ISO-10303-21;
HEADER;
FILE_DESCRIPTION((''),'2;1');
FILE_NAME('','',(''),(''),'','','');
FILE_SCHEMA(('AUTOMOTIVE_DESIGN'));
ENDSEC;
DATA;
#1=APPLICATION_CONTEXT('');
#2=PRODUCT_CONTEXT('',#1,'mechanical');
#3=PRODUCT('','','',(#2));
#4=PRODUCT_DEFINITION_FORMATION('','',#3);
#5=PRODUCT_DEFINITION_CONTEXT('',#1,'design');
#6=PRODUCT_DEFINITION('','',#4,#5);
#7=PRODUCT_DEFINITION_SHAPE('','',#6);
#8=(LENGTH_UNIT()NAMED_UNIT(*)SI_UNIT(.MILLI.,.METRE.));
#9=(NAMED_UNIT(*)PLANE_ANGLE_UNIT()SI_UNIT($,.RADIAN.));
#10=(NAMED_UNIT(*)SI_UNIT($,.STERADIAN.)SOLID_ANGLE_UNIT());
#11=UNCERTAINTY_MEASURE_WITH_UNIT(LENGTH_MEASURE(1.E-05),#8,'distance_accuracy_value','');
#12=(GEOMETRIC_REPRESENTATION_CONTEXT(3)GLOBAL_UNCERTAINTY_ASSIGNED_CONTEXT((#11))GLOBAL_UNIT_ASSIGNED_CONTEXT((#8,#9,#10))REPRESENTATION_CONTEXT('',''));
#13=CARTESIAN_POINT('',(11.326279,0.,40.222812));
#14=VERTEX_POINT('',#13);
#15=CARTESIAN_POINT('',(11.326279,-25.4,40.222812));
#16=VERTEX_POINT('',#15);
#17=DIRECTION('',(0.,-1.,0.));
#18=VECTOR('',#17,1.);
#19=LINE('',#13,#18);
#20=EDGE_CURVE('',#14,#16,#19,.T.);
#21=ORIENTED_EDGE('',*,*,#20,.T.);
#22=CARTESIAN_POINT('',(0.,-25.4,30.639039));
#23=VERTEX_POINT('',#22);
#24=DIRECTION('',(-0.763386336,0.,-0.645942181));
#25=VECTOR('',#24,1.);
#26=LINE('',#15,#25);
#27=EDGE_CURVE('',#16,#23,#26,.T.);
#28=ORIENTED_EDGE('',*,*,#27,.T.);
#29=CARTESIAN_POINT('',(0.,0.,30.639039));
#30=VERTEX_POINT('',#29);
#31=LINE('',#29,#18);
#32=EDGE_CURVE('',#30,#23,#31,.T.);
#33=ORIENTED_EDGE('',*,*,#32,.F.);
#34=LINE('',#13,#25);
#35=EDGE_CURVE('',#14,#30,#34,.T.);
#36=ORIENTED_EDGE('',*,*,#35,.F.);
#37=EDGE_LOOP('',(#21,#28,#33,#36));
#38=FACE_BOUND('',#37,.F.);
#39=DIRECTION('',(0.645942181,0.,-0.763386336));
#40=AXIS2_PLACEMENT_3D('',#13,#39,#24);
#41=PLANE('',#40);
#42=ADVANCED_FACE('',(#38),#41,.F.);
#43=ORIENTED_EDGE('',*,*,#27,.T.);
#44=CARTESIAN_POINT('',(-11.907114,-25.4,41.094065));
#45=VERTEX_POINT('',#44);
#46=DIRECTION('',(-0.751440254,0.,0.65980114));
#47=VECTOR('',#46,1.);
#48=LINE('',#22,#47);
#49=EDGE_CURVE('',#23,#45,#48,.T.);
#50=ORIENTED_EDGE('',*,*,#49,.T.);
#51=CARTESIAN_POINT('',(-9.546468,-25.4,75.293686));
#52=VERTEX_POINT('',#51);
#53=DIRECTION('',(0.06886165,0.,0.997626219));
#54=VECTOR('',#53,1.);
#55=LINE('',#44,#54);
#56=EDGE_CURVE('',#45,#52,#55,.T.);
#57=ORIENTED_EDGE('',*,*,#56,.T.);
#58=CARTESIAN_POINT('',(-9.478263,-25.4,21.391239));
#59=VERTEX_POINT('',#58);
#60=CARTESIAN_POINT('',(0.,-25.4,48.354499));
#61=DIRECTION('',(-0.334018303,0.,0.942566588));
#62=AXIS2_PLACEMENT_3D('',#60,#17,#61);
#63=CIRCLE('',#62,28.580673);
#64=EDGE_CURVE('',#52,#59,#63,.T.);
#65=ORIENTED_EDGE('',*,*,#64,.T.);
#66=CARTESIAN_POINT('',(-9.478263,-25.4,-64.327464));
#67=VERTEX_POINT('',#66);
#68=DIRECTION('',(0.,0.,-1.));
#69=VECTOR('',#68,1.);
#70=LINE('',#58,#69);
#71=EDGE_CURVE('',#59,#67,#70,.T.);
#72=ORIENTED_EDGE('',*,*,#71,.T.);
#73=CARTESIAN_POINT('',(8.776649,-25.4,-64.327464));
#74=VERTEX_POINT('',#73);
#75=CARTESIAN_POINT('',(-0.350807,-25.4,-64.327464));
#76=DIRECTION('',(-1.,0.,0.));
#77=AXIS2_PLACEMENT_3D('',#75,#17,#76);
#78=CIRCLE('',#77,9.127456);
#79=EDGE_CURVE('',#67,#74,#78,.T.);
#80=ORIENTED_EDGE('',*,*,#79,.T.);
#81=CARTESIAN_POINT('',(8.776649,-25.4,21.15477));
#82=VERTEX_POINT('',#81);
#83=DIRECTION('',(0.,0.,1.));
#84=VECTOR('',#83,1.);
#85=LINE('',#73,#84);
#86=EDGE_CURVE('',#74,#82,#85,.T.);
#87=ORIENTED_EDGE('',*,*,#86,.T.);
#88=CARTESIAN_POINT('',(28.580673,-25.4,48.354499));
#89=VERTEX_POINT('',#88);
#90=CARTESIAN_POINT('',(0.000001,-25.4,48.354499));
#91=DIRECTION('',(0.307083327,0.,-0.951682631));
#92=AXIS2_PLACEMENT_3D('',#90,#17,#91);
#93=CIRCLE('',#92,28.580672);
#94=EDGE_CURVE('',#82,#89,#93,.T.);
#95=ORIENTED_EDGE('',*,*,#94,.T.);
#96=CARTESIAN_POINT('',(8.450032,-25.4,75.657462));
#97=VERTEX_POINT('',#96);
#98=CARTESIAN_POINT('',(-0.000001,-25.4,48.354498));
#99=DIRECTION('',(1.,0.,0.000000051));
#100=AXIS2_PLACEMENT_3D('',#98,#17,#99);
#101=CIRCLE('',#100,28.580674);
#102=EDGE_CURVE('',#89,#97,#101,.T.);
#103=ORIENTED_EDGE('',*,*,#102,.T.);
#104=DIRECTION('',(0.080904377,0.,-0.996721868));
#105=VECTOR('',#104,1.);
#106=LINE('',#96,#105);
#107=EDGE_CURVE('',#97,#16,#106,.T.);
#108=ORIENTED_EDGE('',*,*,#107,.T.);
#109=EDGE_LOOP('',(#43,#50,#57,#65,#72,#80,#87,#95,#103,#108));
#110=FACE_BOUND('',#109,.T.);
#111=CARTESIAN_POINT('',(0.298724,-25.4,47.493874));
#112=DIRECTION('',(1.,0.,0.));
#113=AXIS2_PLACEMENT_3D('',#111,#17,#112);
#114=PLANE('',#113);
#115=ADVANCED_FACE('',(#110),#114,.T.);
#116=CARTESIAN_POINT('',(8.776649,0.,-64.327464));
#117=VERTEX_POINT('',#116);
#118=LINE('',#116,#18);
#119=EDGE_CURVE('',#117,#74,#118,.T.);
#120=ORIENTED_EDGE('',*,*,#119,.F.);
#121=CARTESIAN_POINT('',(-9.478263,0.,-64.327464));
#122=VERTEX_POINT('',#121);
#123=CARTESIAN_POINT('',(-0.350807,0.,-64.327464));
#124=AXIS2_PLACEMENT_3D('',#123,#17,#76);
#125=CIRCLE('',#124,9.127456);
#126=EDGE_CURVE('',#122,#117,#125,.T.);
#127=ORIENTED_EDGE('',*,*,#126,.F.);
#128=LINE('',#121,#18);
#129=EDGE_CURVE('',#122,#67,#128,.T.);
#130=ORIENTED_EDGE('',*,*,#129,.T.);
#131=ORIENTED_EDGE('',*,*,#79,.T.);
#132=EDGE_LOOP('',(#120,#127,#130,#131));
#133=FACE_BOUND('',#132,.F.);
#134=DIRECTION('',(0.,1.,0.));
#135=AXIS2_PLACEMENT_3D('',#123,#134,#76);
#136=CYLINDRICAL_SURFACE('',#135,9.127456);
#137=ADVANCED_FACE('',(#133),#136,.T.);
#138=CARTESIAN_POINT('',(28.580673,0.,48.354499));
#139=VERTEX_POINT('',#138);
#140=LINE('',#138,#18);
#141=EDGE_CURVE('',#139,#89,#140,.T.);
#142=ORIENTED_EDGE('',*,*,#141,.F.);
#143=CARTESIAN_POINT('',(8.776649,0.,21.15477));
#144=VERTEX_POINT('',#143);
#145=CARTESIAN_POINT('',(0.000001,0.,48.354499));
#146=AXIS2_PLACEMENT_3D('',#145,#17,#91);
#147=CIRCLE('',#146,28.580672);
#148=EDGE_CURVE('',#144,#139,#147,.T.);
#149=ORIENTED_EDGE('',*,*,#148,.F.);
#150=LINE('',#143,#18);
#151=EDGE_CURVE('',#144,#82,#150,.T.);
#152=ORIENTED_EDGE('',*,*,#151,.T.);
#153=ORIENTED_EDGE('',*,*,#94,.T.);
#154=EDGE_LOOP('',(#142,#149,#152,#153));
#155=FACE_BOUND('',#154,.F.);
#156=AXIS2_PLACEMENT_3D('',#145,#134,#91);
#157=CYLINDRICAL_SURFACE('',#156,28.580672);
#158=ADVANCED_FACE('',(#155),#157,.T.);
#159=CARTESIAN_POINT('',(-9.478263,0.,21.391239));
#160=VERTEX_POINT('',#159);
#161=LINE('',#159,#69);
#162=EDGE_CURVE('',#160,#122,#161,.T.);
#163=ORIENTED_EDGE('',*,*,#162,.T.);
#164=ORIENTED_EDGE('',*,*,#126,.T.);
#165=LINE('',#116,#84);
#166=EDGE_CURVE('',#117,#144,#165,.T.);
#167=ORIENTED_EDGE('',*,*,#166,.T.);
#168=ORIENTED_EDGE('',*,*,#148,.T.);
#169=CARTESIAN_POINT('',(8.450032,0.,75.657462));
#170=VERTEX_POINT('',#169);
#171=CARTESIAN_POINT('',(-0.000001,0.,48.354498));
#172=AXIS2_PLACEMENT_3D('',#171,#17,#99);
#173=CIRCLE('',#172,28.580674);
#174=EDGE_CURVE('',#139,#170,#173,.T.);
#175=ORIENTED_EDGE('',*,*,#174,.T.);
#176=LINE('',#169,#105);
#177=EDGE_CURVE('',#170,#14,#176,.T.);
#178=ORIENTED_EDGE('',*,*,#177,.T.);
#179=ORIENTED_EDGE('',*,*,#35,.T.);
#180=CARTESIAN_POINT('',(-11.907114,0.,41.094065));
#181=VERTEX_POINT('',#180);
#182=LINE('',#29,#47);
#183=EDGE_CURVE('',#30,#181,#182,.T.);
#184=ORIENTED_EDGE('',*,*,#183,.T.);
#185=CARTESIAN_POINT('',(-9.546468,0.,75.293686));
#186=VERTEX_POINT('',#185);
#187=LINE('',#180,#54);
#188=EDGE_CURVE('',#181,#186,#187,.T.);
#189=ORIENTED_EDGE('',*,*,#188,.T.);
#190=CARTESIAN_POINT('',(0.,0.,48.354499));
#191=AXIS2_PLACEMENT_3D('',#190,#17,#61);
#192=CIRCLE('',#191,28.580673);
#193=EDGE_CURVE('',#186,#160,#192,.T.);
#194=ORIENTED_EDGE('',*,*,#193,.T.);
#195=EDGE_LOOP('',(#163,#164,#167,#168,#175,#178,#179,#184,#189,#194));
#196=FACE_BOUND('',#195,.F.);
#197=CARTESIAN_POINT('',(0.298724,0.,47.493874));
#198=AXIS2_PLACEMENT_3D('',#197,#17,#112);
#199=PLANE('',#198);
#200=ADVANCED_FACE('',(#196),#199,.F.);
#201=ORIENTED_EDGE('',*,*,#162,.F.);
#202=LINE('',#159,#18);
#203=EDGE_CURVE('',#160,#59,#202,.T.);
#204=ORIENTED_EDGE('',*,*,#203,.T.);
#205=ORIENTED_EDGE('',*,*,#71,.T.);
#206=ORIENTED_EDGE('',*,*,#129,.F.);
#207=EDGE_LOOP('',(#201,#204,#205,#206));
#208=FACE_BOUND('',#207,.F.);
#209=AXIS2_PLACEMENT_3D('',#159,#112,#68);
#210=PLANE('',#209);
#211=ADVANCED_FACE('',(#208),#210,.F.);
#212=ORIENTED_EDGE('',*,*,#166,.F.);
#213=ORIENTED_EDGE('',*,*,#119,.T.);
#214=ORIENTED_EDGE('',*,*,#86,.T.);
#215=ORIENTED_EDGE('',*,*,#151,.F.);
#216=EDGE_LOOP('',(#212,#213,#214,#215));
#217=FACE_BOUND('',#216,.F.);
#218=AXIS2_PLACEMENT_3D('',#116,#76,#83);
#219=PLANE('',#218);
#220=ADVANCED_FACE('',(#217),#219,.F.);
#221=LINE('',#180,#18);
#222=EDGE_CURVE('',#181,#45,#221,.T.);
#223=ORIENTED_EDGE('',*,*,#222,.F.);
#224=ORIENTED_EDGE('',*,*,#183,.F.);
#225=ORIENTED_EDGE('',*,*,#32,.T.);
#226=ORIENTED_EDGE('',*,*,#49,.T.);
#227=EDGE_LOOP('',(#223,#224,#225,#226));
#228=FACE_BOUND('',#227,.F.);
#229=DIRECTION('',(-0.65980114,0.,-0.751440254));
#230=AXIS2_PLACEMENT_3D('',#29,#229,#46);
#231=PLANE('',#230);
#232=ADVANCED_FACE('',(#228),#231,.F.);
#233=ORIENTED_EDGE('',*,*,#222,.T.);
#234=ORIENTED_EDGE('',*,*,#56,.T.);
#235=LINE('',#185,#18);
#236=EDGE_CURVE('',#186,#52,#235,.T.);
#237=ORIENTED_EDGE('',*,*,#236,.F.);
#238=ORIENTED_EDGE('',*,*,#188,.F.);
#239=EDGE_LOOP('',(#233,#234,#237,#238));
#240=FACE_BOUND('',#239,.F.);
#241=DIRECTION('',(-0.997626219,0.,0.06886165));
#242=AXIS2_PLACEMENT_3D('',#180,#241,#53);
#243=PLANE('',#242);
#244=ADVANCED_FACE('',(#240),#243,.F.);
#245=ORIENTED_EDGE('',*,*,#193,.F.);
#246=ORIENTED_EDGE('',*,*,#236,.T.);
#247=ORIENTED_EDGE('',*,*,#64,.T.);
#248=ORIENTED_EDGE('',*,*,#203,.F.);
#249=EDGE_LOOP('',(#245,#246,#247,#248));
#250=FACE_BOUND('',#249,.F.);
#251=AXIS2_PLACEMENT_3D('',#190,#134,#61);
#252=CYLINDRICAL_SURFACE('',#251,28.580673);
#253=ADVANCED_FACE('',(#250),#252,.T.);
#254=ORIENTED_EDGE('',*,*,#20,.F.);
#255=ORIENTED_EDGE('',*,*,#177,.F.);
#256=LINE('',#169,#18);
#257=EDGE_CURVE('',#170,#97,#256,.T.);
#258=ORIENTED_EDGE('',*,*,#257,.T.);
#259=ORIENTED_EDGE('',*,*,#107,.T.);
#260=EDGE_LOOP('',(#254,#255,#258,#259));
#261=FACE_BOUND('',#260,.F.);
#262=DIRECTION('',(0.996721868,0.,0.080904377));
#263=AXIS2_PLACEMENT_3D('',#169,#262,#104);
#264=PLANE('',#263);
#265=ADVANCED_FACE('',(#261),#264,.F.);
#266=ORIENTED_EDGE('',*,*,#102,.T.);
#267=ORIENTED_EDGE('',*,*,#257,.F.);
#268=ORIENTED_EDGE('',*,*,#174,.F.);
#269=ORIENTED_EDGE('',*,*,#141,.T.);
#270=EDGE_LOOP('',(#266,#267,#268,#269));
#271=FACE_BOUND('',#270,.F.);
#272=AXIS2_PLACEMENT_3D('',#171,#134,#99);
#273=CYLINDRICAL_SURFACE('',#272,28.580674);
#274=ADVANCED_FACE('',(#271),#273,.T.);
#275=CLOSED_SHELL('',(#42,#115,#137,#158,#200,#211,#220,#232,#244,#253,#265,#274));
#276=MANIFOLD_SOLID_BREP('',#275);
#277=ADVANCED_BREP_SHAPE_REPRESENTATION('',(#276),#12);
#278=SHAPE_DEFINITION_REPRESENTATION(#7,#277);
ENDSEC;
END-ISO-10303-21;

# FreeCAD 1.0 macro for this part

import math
import FreeCAD as App
import Part
import Sketcher

V = App.Vector

doc = App.newDocument("Part")
params = doc.addObject("Spreadsheet::Sheet", "Params")
for row, (alias, value) in enumerate([
    ("pad1_length", "1 in"),
], start=1):
    params.set(f"A{row}", alias)
    params.set(f"B{row}", "=" + value)
    params.setAlias(f"B{row}", alias)

body = doc.addObject("PartDesign::Body", "Body")

# Sketch on XZ plane
sketch1 = body.newObject("Sketcher::SketchObject", "Sketch")
sketch1.AttachmentSupport = (doc.getObject("XZ_Plane"), [""])
sketch1.MapMode = "FlatFace"
sketch1.addGeometry([
    Part.ArcOfCircle(Part.Circle(V(0, 48, 0), V(0, 0, 1), 29), math.radians(-72), math.radians(0)),  # 0
    Part.ArcOfCircle(Part.Circle(V(0, 48, 0), V(0, 0, 1), 29), math.radians(0), math.radians(73)),  # 1
    Part.LineSegment(V(8, 76, 0), V(11, 40, 0)),  # 2
    Part.LineSegment(V(11, 40, 0), V(0, 31, 0)),  # 3
    Part.LineSegment(V(0, 31, 0), V(-12, 41, 0)),  # 4
    Part.LineSegment(V(-12, 41, 0), V(-10, 75, 0)),  # 5
    Part.ArcOfCircle(Part.Circle(V(0, 48, 0), V(0, 0, 1), 29), math.radians(110), math.radians(251)),  # 6
    Part.LineSegment(V(-9, 21, 0), V(-9, -64, 0)),  # 7
    Part.ArcOfCircle(Part.Circle(V(0, -64, 0), V(0, 0, 1), 9), math.radians(180), math.radians(360)),  # 8
    Part.LineSegment(V(9, -64, 0), V(9, 21, 0)),  # 9
], False)
sketch1.addConstraint([
    Sketcher.Constraint("Tangent", 0, 2, 1, 1),
    Sketcher.Constraint("Coincident", 1, 2, 2, 1),
    Sketcher.Constraint("Coincident", 2, 2, 3, 1),
    Sketcher.Constraint("Coincident", 3, 2, 4, 1),
    Sketcher.Constraint("Coincident", 4, 2, 5, 1),
    Sketcher.Constraint("Coincident", 5, 2, 6, 1),
    Sketcher.Constraint("Coincident", 6, 2, 7, 1),
    Sketcher.Constraint("Tangent", 7, 2, 8, 1),
    Sketcher.Constraint("Tangent", 8, 2, 9, 1),
    Sketcher.Constraint("Coincident", 9, 2, 0, 1),
    Sketcher.Constraint("Vertical", 7),
    Sketcher.Constraint("Vertical", 9),
    Sketcher.Constraint("Coincident", 6, 3, 0, 3),
    Sketcher.Constraint("Equal", 1, 6),
    Sketcher.Constraint("PointOnObject", 0, 3, -2),
    Sketcher.Constraint("PointOnObject", 1, 3, -2),
    Sketcher.Constraint("PointOnObject", 3, 2, -2),
    Sketcher.Constraint("Horizontal", 6, 3, 0, 2),
    Sketcher.Constraint("Radius", 0, 28.580672),
    Sketcher.Constraint("Radius", 8, 9.127456),
    Sketcher.Constraint("DistanceY", -1, 1, 0, 3, 48.354499),
    Sketcher.Constraint("DistanceX", 5, 2, 1, 2, 17.9965),
    Sketcher.Constraint("DistanceY", 6, 2, 3, 2, 9.2478),
    Sketcher.Constraint("Distance", 2, 35.551192),
    Sketcher.Constraint("Distance", 3, 14.83689),
    Sketcher.Constraint("DistanceY", 7, 2, 7, 1, 85.718703),
    Sketcher.Constraint("DistanceY", 9, 1, 9, 2, 85.482234),
    Sketcher.Constraint("DistanceX", -1, 1, 2, 2, 11.326279),
    Sketcher.Constraint("DistanceY", 4, 2, 5, 2, 34.199621),
    Sketcher.Constraint("DistanceX", 4, 2, 6, 2, 2.428851),
])
pad1 = body.newObject("PartDesign::Pad", "Pad")
pad1.Profile = sketch1
pad1.setExpression("Length", "Params.pad1_length")

doc.recompute()
